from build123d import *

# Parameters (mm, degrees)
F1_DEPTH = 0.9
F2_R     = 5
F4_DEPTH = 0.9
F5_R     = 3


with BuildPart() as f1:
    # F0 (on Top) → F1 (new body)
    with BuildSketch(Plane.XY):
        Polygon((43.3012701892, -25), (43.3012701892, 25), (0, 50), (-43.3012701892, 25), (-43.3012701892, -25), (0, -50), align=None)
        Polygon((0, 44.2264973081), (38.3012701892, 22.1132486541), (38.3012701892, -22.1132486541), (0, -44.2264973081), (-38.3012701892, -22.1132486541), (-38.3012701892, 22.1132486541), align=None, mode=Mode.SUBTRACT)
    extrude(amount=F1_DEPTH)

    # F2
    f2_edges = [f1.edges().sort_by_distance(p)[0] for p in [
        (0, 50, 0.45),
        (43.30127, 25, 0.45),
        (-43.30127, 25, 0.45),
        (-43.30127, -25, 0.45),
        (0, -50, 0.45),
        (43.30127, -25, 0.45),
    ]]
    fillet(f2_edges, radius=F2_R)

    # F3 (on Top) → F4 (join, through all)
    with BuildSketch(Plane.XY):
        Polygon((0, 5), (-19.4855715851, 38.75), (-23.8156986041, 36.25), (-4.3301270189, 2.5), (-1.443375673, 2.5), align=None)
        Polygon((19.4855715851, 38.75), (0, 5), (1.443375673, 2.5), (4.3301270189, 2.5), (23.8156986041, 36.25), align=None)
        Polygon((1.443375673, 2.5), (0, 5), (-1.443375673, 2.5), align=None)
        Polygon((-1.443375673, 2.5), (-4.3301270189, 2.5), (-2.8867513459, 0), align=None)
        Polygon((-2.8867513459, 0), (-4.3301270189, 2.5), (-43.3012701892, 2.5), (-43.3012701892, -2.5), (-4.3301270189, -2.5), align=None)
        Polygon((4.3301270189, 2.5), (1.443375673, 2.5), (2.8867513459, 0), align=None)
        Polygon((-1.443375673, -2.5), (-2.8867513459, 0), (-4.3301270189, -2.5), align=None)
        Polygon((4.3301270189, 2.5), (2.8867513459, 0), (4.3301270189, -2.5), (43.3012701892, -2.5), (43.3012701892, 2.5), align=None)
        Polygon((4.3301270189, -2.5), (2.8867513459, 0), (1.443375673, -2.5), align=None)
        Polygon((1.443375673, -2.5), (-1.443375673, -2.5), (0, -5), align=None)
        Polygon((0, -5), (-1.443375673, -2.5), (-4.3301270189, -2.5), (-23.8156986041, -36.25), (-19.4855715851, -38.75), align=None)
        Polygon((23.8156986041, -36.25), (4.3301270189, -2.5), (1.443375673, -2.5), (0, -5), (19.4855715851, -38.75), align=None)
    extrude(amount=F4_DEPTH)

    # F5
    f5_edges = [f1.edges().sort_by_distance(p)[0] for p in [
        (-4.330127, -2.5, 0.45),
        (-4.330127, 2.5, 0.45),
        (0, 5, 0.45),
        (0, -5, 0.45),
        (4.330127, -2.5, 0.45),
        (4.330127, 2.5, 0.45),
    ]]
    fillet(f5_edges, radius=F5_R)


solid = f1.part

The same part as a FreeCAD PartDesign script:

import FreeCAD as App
import Part
import Sketcher
Q = App.Units.Quantity


def edges_at(feature, points):
    """Names of the edges that pass closest to the given points."""
    edges = feature.Shape.Edges
    near = lambda p: min(range(len(edges)), key=lambda i: edges[i].distToShape(Part.Vertex(*p))[0])
    return sorted({f"Edge{near(p) + 1}" for p in points})


def add_polygon(sketch, points):
    """Adds a closed chain of lines whose ends are joined by coincident constraints."""
    first, n = sketch.GeometryCount, len(points)
    for a, b in zip(points, points[1:] + points[:1]):
        sketch.addGeometry(Part.LineSegment(App.Vector(*a, 0), App.Vector(*b, 0)), False)
    for i in range(n):
        sketch.addConstraint(Sketcher.Constraint("Coincident", first + i, 2, first + (i + 1) % n, 1))

doc = App.newDocument("Part")
body = doc.addObject("PartDesign::Body", "Body")

sketch1 = body.newObject("Sketcher::SketchObject", "Sketch")
sketch1.AttachmentSupport = (doc.getObject("XY_Plane"), [""])
sketch1.MapMode = "FlatFace"
add_polygon(sketch1, [(43.30127, -25), (43.30127, 25), (0, 50), (-43.30127, 25), (-43.30127, -25), (0, -50)])
add_polygon(sketch1, [(-38.30127, 22.113249), (0, 44.226497), (38.30127, 22.113249), (38.30127, -22.113249), (0, -44.226497), (-38.30127, -22.113249)])
sketch1.addConstraint(Sketcher.Constraint("Vertical", 0))
sketch1.addConstraint(Sketcher.Constraint("Vertical", 3))
sketch1.addConstraint(Sketcher.Constraint("Vertical", 8))
sketch1.addConstraint(Sketcher.Constraint("Vertical", 11))
sketch1.addConstraint(Sketcher.Constraint("Symmetric", 0, 2, 3, 2, -1, 1))
sketch1.addConstraint(Sketcher.Constraint("Symmetric", 1, 2, 4, 2, -1, 1))
sketch1.addConstraint(Sketcher.Constraint("Symmetric", 6, 2, 9, 2, -1, 1))
sketch1.addConstraint(Sketcher.Constraint("Symmetric", 7, 2, 10, 2, -1, 1))
sketch1.addConstraint(Sketcher.Constraint("PointOnObject", 1, 2, -2))
sketch1.addConstraint(Sketcher.Constraint("PointOnObject", 6, 2, -2))
sketch1.addConstraint(Sketcher.Constraint("Parallel", 2, 5))
sketch1.addConstraint(Sketcher.Constraint("Parallel", 5, 6))
sketch1.addConstraint(Sketcher.Constraint("Parallel", 4, 7))
sketch1.addConstraint(Sketcher.Constraint("Parallel", 6, 9))
sketch1.addConstraint(Sketcher.Constraint("Horizontal", 0, 2, 2, 2))
sketch1.addConstraint(Sketcher.Constraint("DistanceY", 0, 1, 0, 2, 50.0))
sketch1.addConstraint(Sketcher.Constraint("Angle", 1, Q("150 deg")))
sketch1.addConstraint(Sketcher.Constraint("Distance", 1, 50.0))
sketch1.addConstraint(Sketcher.Constraint("DistanceX", 7, 2, 0, 2, 5.0))
sketch1.addConstraint(Sketcher.Constraint("DistanceY", 8, 2, 8, 1, 44.226497))
pad1 = body.newObject("PartDesign::Pad", "Pad")
pad1.Profile = sketch1
pad1.Length = 0.9
doc.recompute()

fillet = body.newObject("PartDesign::Fillet", "Fillet")
fillet.Base = (pad1, edges_at(pad1, [
    (0, 50, 0.45),
    (43.301, 25, 0.45),
    (-43.301, 25, 0.45),
    (-43.301, -25, 0.45),
    (0, -50, 0.45),
    (43.301, -25, 0.45),
]))
fillet.Radius = 5

sketch2 = body.newObject("Sketcher::SketchObject", "Sketch001")
sketch2.AttachmentSupport = (doc.getObject("XY_Plane"), [""])
sketch2.MapMode = "FlatFace"
add_polygon(sketch2, [(-19.485572, -38.75), (0, -5), (19.485572, -38.75), (23.815699, -36.25), (4.330127, -2.5), (43.30127, -2.5), (43.30127, 2.5), (4.330127, 2.5), (23.815699, 36.25), (19.485572, 38.75), (0, 5), (-19.485572, 38.75), (-23.815699, 36.25), (-4.330127, 2.5), (-43.30127, 2.5), (-43.30127, -2.5), (-4.330127, -2.5), (-23.815699, -36.25)])
add_polygon(sketch2, [(2.886751, 0), (1.443376, -2.5), (-1.443376, -2.5), (-2.886751, 0), (-1.443376, 2.5), (1.443376, 2.5)])
sketch2.addConstraint(Sketcher.Constraint("Horizontal", 4))
sketch2.addConstraint(Sketcher.Constraint("Vertical", 5))
sketch2.addConstraint(Sketcher.Constraint("Horizontal", 6))
sketch2.addConstraint(Sketcher.Constraint("Horizontal", 13))
sketch2.addConstraint(Sketcher.Constraint("Vertical", 14))
sketch2.addConstraint(Sketcher.Constraint("Horizontal", 15))
sketch2.addConstraint(Sketcher.Constraint("Horizontal", 19))
sketch2.addConstraint(Sketcher.Constraint("Horizontal", 22))
sketch2.addConstraint(Sketcher.Constraint("Symmetric", 0, 2, 9, 2, -1, 1))
sketch2.addConstraint(Sketcher.Constraint("Symmetric", 1, 2, 10, 2, -1, 1))
sketch2.addConstraint(Sketcher.Constraint("Symmetric", 2, 2, 11, 2, -1, 1))
sketch2.addConstraint(Sketcher.Constraint("Symmetric", 3, 2, 12, 2, -1, 1))
sketch2.addConstraint(Sketcher.Constraint("Symmetric", 5, 2, 14, 2, -1, 1))
sketch2.addConstraint(Sketcher.Constraint("Symmetric", 7, 2, 16, 2, -1, 1))
sketch2.addConstraint(Sketcher.Constraint("Symmetric", 8, 2, 17, 2, -1, 1))
sketch2.addConstraint(Sketcher.Constraint("Symmetric", 18, 2, 21, 2, -1, 1))
sketch2.addConstraint(Sketcher.Constraint("Symmetric", 20, 2, 23, 2, -1, 1))
sketch2.addConstraint(Sketcher.Constraint("Symmetric", 8, 2, 10, 2, -2))
sketch2.addConstraint(Sketcher.Constraint("Symmetric", 7, 2, 11, 2, -2))
sketch2.addConstraint(Sketcher.Constraint("Symmetric", 6, 2, 12, 2, -2))
sketch2.addConstraint(Sketcher.Constraint("PointOnObject", 0, 2, -2))
sketch2.addConstraint(Sketcher.Constraint("PointOnObject", 20, 2, -1))
sketch2.addConstraint(Sketcher.Constraint("Perpendicular", 1, 2))
sketch2.addConstraint(Sketcher.Constraint("Perpendicular", 2, 3))
sketch2.addConstraint(Sketcher.Constraint("Parallel", 9, 16))
sketch2.addConstraint(Sketcher.Constraint("Perpendicular", 17, 18))
sketch2.addConstraint(Sketcher.Constraint("Parallel", 12, 20))
sketch2.addConstraint(Sketcher.Constraint("Parallel", 20, 23))
sketch2.addConstraint(Sketcher.Constraint("Horizontal", 15, 2, 18, 2))
sketch2.addConstraint(Sketcher.Constraint("Equal", 1, 3))
sketch2.addConstraint(Sketcher.Constraint("DistanceY", 5, 1, 5, 2, 5.0))
sketch2.addConstraint(Sketcher.Constraint("Angle", 0, Q("60 deg")))
sketch2.addConstraint(Sketcher.Constraint("Distance", 2, 5.0))
sketch2.addConstraint(Sketcher.Constraint("DistanceY", 1, 2, -1, 1, 38.75))
sketch2.addConstraint(Sketcher.Constraint("DistanceX", 19, 2, 19, 1, 2.886751))
sketch2.addConstraint(Sketcher.Constraint("DistanceX", 1, 2, 4, 2, 23.815699))
pad2 = body.newObject("PartDesign::Pad", "Pad001")
pad2.Profile = sketch2
pad2.Length = 0.9
doc.recompute()

fillet2 = body.newObject("PartDesign::Fillet", "Fillet001")
fillet2.Base = (pad2, edges_at(pad2, [
    (-4.33, -2.5, 0.45),
    (-4.33, 2.5, 0.45),
    (0, 5, 0.45),
    (0, -5, 0.45),
    (4.33, -2.5, 0.45),
    (4.33, 2.5, 0.45),
]))
fillet2.Radius = 3

doc.recompute()
